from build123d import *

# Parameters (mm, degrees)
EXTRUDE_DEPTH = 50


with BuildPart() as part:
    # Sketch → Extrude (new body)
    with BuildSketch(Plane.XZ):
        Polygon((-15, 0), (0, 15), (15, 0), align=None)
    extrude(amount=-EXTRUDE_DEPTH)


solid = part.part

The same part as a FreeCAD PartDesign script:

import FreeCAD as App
import Part
import Sketcher
from FreeCAD import Vector
Q = App.Units.Quantity

doc = App.newDocument("Part")
params = doc.addObject("Spreadsheet::Sheet", "Params")
for row, (alias, value) in enumerate([
    ("sketch1_width", "30 mm"),
    ("pad1_length", "50 mm"),
], start=1):
    params.set(f"A{row}", alias)
    params.set(f"B{row}", "=" + value)
    params.setAlias(f"B{row}", alias)

body = doc.addObject("PartDesign::Body", "Body")

# Sketch on XZ plane
sketch1 = body.newObject("Sketcher::SketchObject", "Sketch")
sketch1.AttachmentSupport = (doc.getObject("XZ_Plane"), [""])
sketch1.MapMode = "FlatFace"
sketch1.addGeometry([
    Part.LineSegment(Vector(0, 15, 0), Vector(-15, 0, 0)),
    Part.LineSegment(Vector(-15, 0, 0), Vector(15, 0, 0)),
    Part.LineSegment(Vector(15, 0, 0), Vector(0, 15, 0)),
], False)
sketch1.addConstraint([
    Sketcher.Constraint("Coincident", 0, 2, 1, 1),
    Sketcher.Constraint("Coincident", 1, 2, 2, 1),
    Sketcher.Constraint("Coincident", 2, 2, 0, 1),
    Sketcher.Constraint("Horizontal", 1),
    Sketcher.Constraint("Symmetric", 0, 2, 1, 2, -1, 1),
    Sketcher.Constraint("PointOnObject", 2, 2, -2),
    Sketcher.Constraint("Perpendicular", 0, 2),
    Sketcher.Constraint("DistanceX", 1, 1, 1, 2, Q("30 mm")),
])
sketch1.setExpression("Constraints[7]", "Params.sketch1_width")
pad1 = body.newObject("PartDesign::Pad", "Pad")
pad1.Profile = sketch1
pad1.setExpression("Length", "Params.pad1_length")
pad1.Reversed = True

doc.recompute()
